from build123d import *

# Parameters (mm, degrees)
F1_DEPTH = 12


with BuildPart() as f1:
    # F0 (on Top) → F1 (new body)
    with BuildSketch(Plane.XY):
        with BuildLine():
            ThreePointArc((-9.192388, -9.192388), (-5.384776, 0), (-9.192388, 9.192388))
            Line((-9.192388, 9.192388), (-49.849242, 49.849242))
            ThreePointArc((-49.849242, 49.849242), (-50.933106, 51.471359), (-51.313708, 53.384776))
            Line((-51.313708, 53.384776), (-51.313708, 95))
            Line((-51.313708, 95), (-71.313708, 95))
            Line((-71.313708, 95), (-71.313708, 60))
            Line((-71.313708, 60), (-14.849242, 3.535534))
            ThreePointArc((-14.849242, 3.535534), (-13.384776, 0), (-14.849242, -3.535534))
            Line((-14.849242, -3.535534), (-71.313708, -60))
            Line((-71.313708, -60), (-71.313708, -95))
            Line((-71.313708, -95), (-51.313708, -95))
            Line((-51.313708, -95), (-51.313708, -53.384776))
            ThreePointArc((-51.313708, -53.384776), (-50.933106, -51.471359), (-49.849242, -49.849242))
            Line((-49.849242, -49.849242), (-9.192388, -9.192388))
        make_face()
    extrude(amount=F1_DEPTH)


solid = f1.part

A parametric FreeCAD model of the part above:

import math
import FreeCAD as App
import Part
import Sketcher

V = App.Vector

doc = App.newDocument("Part")
params = doc.addObject("Spreadsheet::Sheet", "Params")
for row, (alias, value) in enumerate([
    ("sketch1_radius", "12.999999 mm"),
    ("sketch1_radius2", "5 mm"),
    ("sketch1_width", "20 mm"),
    ("sketch1_height", "35 mm"),
    ("pad1_length", "12 mm"),
], start=1):
    params.set(f"A{row}", alias)
    params.set(f"B{row}", "=" + value)
    params.setAlias(f"B{row}", alias)

body = doc.addObject("PartDesign::Body", "Body")

# Sketch on XY plane
sketch1 = body.newObject("Sketcher::SketchObject", "Sketch")
sketch1.AttachmentSupport = (doc.getObject("XY_Plane"), [""])
sketch1.MapMode = "FlatFace"
sketch1.addGeometry([
    Part.ArcOfCircle(Part.Circle(V(-18.4, 0, 0), V(0, 0, 1), 13), math.radians(-45), math.radians(45)),  # 0
    Part.LineSegment(V(-9.2, 9.2, 0), V(-49.8, 49.8, 0)),  # 1
    Part.ArcOfCircle(Part.Circle(V(-46.3, 53.4, 0), V(0, 0, 1), 5), math.radians(180), math.radians(225)),  # 2
    Part.LineSegment(V(-51.3, 53.4, 0), V(-51.3, 95, 0)),  # 3
    Part.LineSegment(V(-51.3, 95, 0), V(-71.3, 95, 0)),  # 4
    Part.LineSegment(V(-71.3, 95, 0), V(-71.3, 60, 0)),  # 5
    Part.LineSegment(V(-71.3, 60, 0), V(-14.8, 3.5, 0)),  # 6
    Part.ArcOfCircle(Part.Circle(V(-18.4, 0, 0), V(0, 0, 1), 5), math.radians(-45), math.radians(45)),  # 7
    Part.LineSegment(V(-14.8, -3.5, 0), V(-71.3, -60, 0)),  # 8
    Part.LineSegment(V(-71.3, -60, 0), V(-71.3, -95, 0)),  # 9
    Part.LineSegment(V(-71.3, -95, 0), V(-51.3, -95, 0)),  # 10
    Part.LineSegment(V(-51.3, -95, 0), V(-51.3, -53.4, 0)),  # 11
    Part.ArcOfCircle(Part.Circle(V(-46.3, -53.4, 0), V(0, 0, 1), 5), math.radians(135), math.radians(180)),  # 12
    Part.LineSegment(V(-49.8, -49.8, 0), V(-9.2, -9.2, 0)),  # 13
], False)
sketch1.addConstraint([
    Sketcher.Constraint("Tangent", 0, 2, 1, 1),
    Sketcher.Constraint("Tangent", 1, 2, 2, 2),
    Sketcher.Constraint("Tangent", 2, 1, 3, 1),
    Sketcher.Constraint("Coincident", 3, 2, 4, 1),
    Sketcher.Constraint("Coincident", 4, 2, 5, 1),
    Sketcher.Constraint("Coincident", 5, 2, 6, 1),
    Sketcher.Constraint("Tangent", 6, 2, 7, 2),
    Sketcher.Constraint("Tangent", 7, 1, 8, 1),
    Sketcher.Constraint("Coincident", 8, 2, 9, 1),
    Sketcher.Constraint("Coincident", 9, 2, 10, 1),
    Sketcher.Constraint("Coincident", 10, 2, 11, 1),
    Sketcher.Constraint("Tangent", 11, 2, 12, 2),
    Sketcher.Constraint("Tangent", 12, 1, 13, 1),
    Sketcher.Constraint("Tangent", 13, 2, 0, 1),
    Sketcher.Constraint("Vertical", 3),
    Sketcher.Constraint("Horizontal", 4),
    Sketcher.Constraint("Vertical", 5),
    Sketcher.Constraint("Vertical", 9),
    Sketcher.Constraint("Horizontal", 10),
    Sketcher.Constraint("Vertical", 11),
    Sketcher.Constraint("Coincident", 7, 3, 0, 3),
    Sketcher.Constraint("Equal", 2, 12),
    Sketcher.Constraint("Symmetric", 2, 3, 12, 3, -1),
    Sketcher.Constraint("Symmetric", 6, 2, 7, 1, -1),
    Sketcher.Constraint("Symmetric", 4, 2, 9, 2, -1),
    Sketcher.Constraint("Parallel", 1, 6),
    Sketcher.Constraint("Perpendicular", 6, 8),
    Sketcher.Constraint("Radius", 0, 12.999999),
    Sketcher.Constraint("Radius", 7, 5.0),
    Sketcher.Constraint("DistanceX", 4, 2, 4, 1, 20.0),
    Sketcher.Constraint("DistanceY", 5, 2, 5, 1, 35.0),
    Sketcher.Constraint("DistanceY", -1, 1, 3, 2, 95.0),
    Sketcher.Constraint("DistanceX", 1, 2, 6, 2, 35.0),
    Sketcher.Constraint("DistanceX", 2, 3, -1, 1, 46.31371),
])
sketch1.setExpression("Constraints[27]", "Params.sketch1_radius")
sketch1.setExpression("Constraints[28]", "Params.sketch1_radius2")
sketch1.setExpression("Constraints[29]", "Params.sketch1_width")
sketch1.setExpression("Constraints[30]", "Params.sketch1_height")
pad1 = body.newObject("PartDesign::Pad", "Pad")
pad1.Profile = sketch1
pad1.setExpression("Length", "Params.pad1_length")

doc.recompute()
